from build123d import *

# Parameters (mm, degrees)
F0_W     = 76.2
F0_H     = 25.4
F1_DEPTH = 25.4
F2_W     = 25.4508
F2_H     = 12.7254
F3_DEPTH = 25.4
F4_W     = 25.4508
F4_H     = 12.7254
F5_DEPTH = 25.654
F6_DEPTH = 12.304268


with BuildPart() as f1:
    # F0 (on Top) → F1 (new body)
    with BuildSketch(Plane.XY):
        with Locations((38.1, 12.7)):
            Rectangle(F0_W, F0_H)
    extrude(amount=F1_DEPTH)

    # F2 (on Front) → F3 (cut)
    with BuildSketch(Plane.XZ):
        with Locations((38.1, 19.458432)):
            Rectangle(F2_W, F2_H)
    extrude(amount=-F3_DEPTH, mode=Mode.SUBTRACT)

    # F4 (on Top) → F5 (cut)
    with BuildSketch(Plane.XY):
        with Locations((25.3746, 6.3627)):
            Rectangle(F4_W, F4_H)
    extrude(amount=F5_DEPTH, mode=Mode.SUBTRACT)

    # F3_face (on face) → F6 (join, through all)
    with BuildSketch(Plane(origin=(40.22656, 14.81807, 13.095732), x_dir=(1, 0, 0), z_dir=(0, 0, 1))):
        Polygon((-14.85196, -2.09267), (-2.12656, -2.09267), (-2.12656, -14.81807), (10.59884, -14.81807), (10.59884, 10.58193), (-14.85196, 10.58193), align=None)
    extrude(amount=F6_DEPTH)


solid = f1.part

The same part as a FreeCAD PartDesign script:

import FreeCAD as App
import Part
import Sketcher
from FreeCAD import Vector
Q = App.Units.Quantity

doc = App.newDocument("Part")
body = doc.addObject("PartDesign::Body", "Body")

# Sketch on XY plane
sketch1 = body.newObject("Sketcher::SketchObject", "Sketch")
sketch1.AttachmentSupport = (doc.getObject("XY_Plane"), [""])
sketch1.MapMode = "FlatFace"
sketch1.addGeometry([
    Part.LineSegment(Vector(0, 25.4, 0), Vector(0, 0, 0)),
    Part.LineSegment(Vector(0, 0, 0), Vector(76.2, 0, 0)),
    Part.LineSegment(Vector(76.2, 0, 0), Vector(76.2, 25.4, 0)),
    Part.LineSegment(Vector(76.2, 25.4, 0), Vector(0, 25.4, 0)),
], False)
sketch1.addConstraint([
    Sketcher.Constraint("Coincident", 0, 2, 1, 1),
    Sketcher.Constraint("Coincident", 1, 2, 2, 1),
    Sketcher.Constraint("Coincident", 2, 2, 3, 1),
    Sketcher.Constraint("Coincident", 3, 2, 0, 1),
    Sketcher.Constraint("Vertical", 0),
    Sketcher.Constraint("Horizontal", 1),
    Sketcher.Constraint("Vertical", 2),
    Sketcher.Constraint("Horizontal", 3),
    Sketcher.Constraint("Coincident", 0, 2, -1, 1),
    Sketcher.Constraint("DistanceX", 1, 1, 1, 2, Q("3 in")),
    Sketcher.Constraint("DistanceY", 0, 2, 0, 1, Q("1 in")),
])
pad1 = body.newObject("PartDesign::Pad", "Pad")
pad1.Profile = sketch1
pad1.Length = Q("1 in")

# Sketch on XZ plane
sketch2 = body.newObject("Sketcher::SketchObject", "Sketch001")
sketch2.AttachmentSupport = (doc.getObject("XZ_Plane"), [""])
sketch2.MapMode = "FlatFace"
sketch2.addGeometry([
    Part.LineSegment(Vector(25.3746, 25.821132, 0), Vector(25.3746, 13.095732, 0)),
    Part.LineSegment(Vector(25.3746, 13.095732, 0), Vector(50.8254, 13.095732, 0)),
    Part.LineSegment(Vector(50.8254, 13.095732, 0), Vector(50.8254, 25.821132, 0)),
    Part.LineSegment(Vector(50.8254, 25.821132, 0), Vector(25.3746, 25.821132, 0)),
], False)
sketch2.addConstraint([
    Sketcher.Constraint("Coincident", 0, 2, 1, 1),
    Sketcher.Constraint("Coincident", 1, 2, 2, 1),
    Sketcher.Constraint("Coincident", 2, 2, 3, 1),
    Sketcher.Constraint("Coincident", 3, 2, 0, 1),
    Sketcher.Constraint("Vertical", 0),
    Sketcher.Constraint("Horizontal", 1),
    Sketcher.Constraint("Vertical", 2),
    Sketcher.Constraint("Horizontal", 3),
    Sketcher.Constraint("DistanceX", 1, 1, 1, 2, Q("1.002 in")),
    Sketcher.Constraint("DistanceY", 0, 2, 0, 1, Q("0.501 in")),
    Sketcher.Constraint("DistanceX", -1, 1, 0, 2, Q("0.999 in")),
    Sketcher.Constraint("DistanceY", -1, 1, 2, 2, 25.821132),
])
pocket1 = body.newObject("PartDesign::Pocket", "Pocket")
pocket1.Profile = sketch2
pocket1.Length = Q("1 in")

# Sketch on XY plane
sketch3 = body.newObject("Sketcher::SketchObject", "Sketch002")
sketch3.AttachmentSupport = (doc.getObject("XY_Plane"), [""])
sketch3.MapMode = "FlatFace"
sketch3.addGeometry([
    Part.LineSegment(Vector(12.6492, 12.7254, 0), Vector(12.6492, 0, 0)),
    Part.LineSegment(Vector(12.6492, 0, 0), Vector(38.1, 0, 0)),
    Part.LineSegment(Vector(38.1, 0, 0), Vector(38.1, 12.7254, 0)),
    Part.LineSegment(Vector(38.1, 12.7254, 0), Vector(12.6492, 12.7254, 0)),
], False)
sketch3.addConstraint([
    Sketcher.Constraint("Coincident", 0, 2, 1, 1),
    Sketcher.Constraint("Coincident", 1, 2, 2, 1),
    Sketcher.Constraint("Coincident", 2, 2, 3, 1),
    Sketcher.Constraint("Coincident", 3, 2, 0, 1),
    Sketcher.Constraint("Vertical", 0),
    Sketcher.Constraint("Horizontal", 1),
    Sketcher.Constraint("Vertical", 2),
    Sketcher.Constraint("Horizontal", 3),
    Sketcher.Constraint("PointOnObject", 0, 2, -1),
    Sketcher.Constraint("DistanceX", -1, 1, 1, 2, Q("1.5 in")),
    Sketcher.Constraint("DistanceX", 1, 1, 1, 2, Q("1.002 in")),
    Sketcher.Constraint("DistanceY", 0, 2, 0, 1, Q("0.501 in")),
])
pocket2 = body.newObject("PartDesign::Pocket", "Pocket001")
pocket2.Profile = sketch3
pocket2.Length = Q("1.01 in")
pocket2.Reversed = True

# Sketch on XY plane
sketch4 = body.newObject("Sketcher::SketchObject", "Sketch003")
sketch4.AttachmentSupport = (doc.getObject("XY_Plane"), [""])
sketch4.MapMode = "FlatFace"
sketch4.AttachmentOffset = App.Placement(Vector(0, 0, 13.095732), App.Rotation())
sketch4.addGeometry([
    Part.LineSegment(Vector(25.3746, 12.7254, 0), Vector(38.1, 12.7254, 0)),  # 0
    Part.LineSegment(Vector(38.1, 12.7254, 0), Vector(38.1, 0, 0)),  # 1
    Part.LineSegment(Vector(38.1, 0, 0), Vector(50.8254, 0, 0)),  # 2
    Part.LineSegment(Vector(50.8254, 0, 0), Vector(50.8254, 25.4, 0)),  # 3
    Part.LineSegment(Vector(50.8254, 25.4, 0), Vector(25.3746, 25.4, 0)),  # 4
    Part.LineSegment(Vector(25.3746, 25.4, 0), Vector(25.3746, 12.7254, 0)),  # 5
], False)
sketch4.addConstraint([
    Sketcher.Constraint("Coincident", 0, 2, 1, 1),
    Sketcher.Constraint("Coincident", 1, 2, 2, 1),
    Sketcher.Constraint("Coincident", 2, 2, 3, 1),
    Sketcher.Constraint("Coincident", 3, 2, 4, 1),
    Sketcher.Constraint("Coincident", 4, 2, 5, 1),
    Sketcher.Constraint("Coincident", 5, 2, 0, 1),
    Sketcher.Constraint("Horizontal", 0),
    Sketcher.Constraint("Vertical", 1),
    Sketcher.Constraint("Horizontal", 2),
    Sketcher.Constraint("Vertical", 3),
    Sketcher.Constraint("Horizontal", 4),
    Sketcher.Constraint("Vertical", 5),
    Sketcher.Constraint("PointOnObject", 1, 2, -1),
    Sketcher.Constraint("Equal", 0, 2),
    Sketcher.Constraint("Equal", 2, 1),
    Sketcher.Constraint("DistanceY", 3, 1, 3, 2, Q("1 in")),
    Sketcher.Constraint("DistanceX", -1, 1, 0, 2, Q("1.5 in")),
    Sketcher.Constraint("DistanceX", 0, 1, 0, 2, Q("0.501 in")),
])
pad2 = body.newObject("PartDesign::Pad", "Pad001")
pad2.Profile = sketch4
pad2.Length = 12.304268

doc.recompute()
